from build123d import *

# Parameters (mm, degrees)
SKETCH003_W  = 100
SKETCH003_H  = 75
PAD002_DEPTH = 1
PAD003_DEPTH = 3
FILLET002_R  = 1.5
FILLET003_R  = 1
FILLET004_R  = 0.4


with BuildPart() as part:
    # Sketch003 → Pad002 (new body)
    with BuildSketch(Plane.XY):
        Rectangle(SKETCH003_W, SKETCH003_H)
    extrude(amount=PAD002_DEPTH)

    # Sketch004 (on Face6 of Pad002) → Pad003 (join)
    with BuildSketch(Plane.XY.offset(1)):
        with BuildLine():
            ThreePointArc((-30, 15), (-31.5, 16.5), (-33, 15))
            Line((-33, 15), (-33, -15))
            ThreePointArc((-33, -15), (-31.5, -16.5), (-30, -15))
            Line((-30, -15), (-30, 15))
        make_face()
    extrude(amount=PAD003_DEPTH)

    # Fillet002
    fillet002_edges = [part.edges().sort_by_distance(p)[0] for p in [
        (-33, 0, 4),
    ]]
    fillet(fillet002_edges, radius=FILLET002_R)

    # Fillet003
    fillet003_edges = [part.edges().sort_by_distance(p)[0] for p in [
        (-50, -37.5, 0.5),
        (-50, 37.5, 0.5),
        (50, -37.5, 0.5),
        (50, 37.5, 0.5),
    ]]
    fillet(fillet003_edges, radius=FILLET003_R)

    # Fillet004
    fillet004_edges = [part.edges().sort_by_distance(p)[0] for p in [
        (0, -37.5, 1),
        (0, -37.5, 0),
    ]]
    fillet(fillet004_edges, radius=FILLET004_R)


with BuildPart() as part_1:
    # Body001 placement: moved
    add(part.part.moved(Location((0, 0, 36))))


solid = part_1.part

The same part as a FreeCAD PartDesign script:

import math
import FreeCAD as App
import Part
import Sketcher
from FreeCAD import Vector
Q = App.Units.Quantity


def edges_at(feature, points):
    """Names of the edges that pass closest to the given points."""
    edges = feature.Shape.Edges
    near = lambda p: min(range(len(edges)), key=lambda i: edges[i].distToShape(Part.Vertex(*p))[0])
    return sorted({f"Edge{near(p) + 1}" for p in points})


def add_polygon(sketch, points):
    """Adds a closed chain of lines whose ends are joined by coincident constraints."""
    first, n = sketch.GeometryCount, len(points)
    for a, b in zip(points, points[1:] + points[:1]):
        sketch.addGeometry(Part.LineSegment(App.Vector(*a, 0), App.Vector(*b, 0)), False)
    for i in range(n):
        sketch.addConstraint(Sketcher.Constraint("Coincident", first + i, 2, first + (i + 1) % n, 1))

doc = App.newDocument("Part")
body = doc.addObject("PartDesign::Body", "Body")

sketch1 = body.newObject("Sketcher::SketchObject", "Sketch")
sketch1.AttachmentSupport = (doc.getObject("XY_Plane"), [""])
sketch1.MapMode = "FlatFace"
add_polygon(sketch1, [(-50, 37.5), (-50, -37.5), (50, -37.5), (50, 37.5)])
sketch1.addConstraint([
    Sketcher.Constraint("Vertical", 0),
    Sketcher.Constraint("Horizontal", 1),
    Sketcher.Constraint("Vertical", 2),
    Sketcher.Constraint("Horizontal", 3),
    Sketcher.Constraint("Symmetric", 0, 2, 2, 2, -1, 1),
    Sketcher.Constraint("DistanceX", 1, 1, 1, 2, Q("100 mm")),
    Sketcher.Constraint("DistanceY", 0, 2, 0, 1, Q("75 mm")),
])
pad1 = body.newObject("PartDesign::Pad", "Pad")
pad1.Profile = sketch1
pad1.Length = 1

sketch2 = body.newObject("Sketcher::SketchObject", "Sketch001")
sketch2.AttachmentSupport = (doc.getObject("XY_Plane"), [""])
sketch2.MapMode = "FlatFace"
sketch2.AttachmentOffset = App.Placement(Vector(0, 0, 1), App.Rotation())
sketch2.addGeometry([
    Part.ArcOfCircle(Part.Circle(Vector(-31.5, 15, 0), Vector(0, 0, 1), 1.5), math.radians(0), math.radians(180)),
    Part.LineSegment(Vector(-33, 15, 0), Vector(-33, -15, 0)),
    Part.ArcOfCircle(Part.Circle(Vector(-31.5, -15, 0), Vector(0, 0, 1), 1.5), math.radians(180), math.radians(360)),
    Part.LineSegment(Vector(-30, -15, 0), Vector(-30, 15, 0)),
], False)
sketch2.addConstraint([
    Sketcher.Constraint("Tangent", 0, 2, 1, 1),
    Sketcher.Constraint("Tangent", 1, 2, 2, 1),
    Sketcher.Constraint("Tangent", 2, 2, 3, 1),
    Sketcher.Constraint("Tangent", 3, 2, 0, 1),
    Sketcher.Constraint("Vertical", 1),
    Sketcher.Constraint("Vertical", 3),
    Sketcher.Constraint("Radius", 0, Q("1.5 mm")),
    Sketcher.Constraint("DistanceY", 1, 2, 1, 1, Q("30 mm")),
    Sketcher.Constraint("DistanceY", -1, 1, 0, 3, Q("15 mm")),
    Sketcher.Constraint("DistanceX", 0, 2, -1, 1, Q("33 mm")),
])
pad2 = body.newObject("PartDesign::Pad", "Pad001")
pad2.Profile = sketch2
pad2.Length = 3
doc.recompute()

fillet = body.newObject("PartDesign::Fillet", "Fillet")
fillet.Base = (pad2, edges_at(pad2, [(-33, 0, 4)]))
fillet.Radius = 1.5
doc.recompute()

fillet2 = body.newObject("PartDesign::Fillet", "Fillet001")
fillet2.Base = (fillet, edges_at(fillet, [
    (-50, -37.5, 0.5),
    (-50, 37.5, 0.5),
    (50, -37.5, 0.5),
    (50, 37.5, 0.5),
]))
fillet2.Radius = 1
doc.recompute()

fillet3 = body.newObject("PartDesign::Fillet", "Fillet002")
fillet3.Base = (fillet2, edges_at(fillet2, [(0, -37.5, 1), (0, -37.5, 0)]))
fillet3.Radius = 0.4
body2 = doc.addObject("PartDesign::Body", "Body001")
doc.recompute()

body.Placement = App.Placement(Vector(0, 0, 36), App.Rotation(Vector(0, 0, 1), 0))
boolean = body2.newObject("PartDesign::Boolean", "Boolean")
boolean.Type = "Fuse"
boolean.addObjects([body])

doc.recompute()
